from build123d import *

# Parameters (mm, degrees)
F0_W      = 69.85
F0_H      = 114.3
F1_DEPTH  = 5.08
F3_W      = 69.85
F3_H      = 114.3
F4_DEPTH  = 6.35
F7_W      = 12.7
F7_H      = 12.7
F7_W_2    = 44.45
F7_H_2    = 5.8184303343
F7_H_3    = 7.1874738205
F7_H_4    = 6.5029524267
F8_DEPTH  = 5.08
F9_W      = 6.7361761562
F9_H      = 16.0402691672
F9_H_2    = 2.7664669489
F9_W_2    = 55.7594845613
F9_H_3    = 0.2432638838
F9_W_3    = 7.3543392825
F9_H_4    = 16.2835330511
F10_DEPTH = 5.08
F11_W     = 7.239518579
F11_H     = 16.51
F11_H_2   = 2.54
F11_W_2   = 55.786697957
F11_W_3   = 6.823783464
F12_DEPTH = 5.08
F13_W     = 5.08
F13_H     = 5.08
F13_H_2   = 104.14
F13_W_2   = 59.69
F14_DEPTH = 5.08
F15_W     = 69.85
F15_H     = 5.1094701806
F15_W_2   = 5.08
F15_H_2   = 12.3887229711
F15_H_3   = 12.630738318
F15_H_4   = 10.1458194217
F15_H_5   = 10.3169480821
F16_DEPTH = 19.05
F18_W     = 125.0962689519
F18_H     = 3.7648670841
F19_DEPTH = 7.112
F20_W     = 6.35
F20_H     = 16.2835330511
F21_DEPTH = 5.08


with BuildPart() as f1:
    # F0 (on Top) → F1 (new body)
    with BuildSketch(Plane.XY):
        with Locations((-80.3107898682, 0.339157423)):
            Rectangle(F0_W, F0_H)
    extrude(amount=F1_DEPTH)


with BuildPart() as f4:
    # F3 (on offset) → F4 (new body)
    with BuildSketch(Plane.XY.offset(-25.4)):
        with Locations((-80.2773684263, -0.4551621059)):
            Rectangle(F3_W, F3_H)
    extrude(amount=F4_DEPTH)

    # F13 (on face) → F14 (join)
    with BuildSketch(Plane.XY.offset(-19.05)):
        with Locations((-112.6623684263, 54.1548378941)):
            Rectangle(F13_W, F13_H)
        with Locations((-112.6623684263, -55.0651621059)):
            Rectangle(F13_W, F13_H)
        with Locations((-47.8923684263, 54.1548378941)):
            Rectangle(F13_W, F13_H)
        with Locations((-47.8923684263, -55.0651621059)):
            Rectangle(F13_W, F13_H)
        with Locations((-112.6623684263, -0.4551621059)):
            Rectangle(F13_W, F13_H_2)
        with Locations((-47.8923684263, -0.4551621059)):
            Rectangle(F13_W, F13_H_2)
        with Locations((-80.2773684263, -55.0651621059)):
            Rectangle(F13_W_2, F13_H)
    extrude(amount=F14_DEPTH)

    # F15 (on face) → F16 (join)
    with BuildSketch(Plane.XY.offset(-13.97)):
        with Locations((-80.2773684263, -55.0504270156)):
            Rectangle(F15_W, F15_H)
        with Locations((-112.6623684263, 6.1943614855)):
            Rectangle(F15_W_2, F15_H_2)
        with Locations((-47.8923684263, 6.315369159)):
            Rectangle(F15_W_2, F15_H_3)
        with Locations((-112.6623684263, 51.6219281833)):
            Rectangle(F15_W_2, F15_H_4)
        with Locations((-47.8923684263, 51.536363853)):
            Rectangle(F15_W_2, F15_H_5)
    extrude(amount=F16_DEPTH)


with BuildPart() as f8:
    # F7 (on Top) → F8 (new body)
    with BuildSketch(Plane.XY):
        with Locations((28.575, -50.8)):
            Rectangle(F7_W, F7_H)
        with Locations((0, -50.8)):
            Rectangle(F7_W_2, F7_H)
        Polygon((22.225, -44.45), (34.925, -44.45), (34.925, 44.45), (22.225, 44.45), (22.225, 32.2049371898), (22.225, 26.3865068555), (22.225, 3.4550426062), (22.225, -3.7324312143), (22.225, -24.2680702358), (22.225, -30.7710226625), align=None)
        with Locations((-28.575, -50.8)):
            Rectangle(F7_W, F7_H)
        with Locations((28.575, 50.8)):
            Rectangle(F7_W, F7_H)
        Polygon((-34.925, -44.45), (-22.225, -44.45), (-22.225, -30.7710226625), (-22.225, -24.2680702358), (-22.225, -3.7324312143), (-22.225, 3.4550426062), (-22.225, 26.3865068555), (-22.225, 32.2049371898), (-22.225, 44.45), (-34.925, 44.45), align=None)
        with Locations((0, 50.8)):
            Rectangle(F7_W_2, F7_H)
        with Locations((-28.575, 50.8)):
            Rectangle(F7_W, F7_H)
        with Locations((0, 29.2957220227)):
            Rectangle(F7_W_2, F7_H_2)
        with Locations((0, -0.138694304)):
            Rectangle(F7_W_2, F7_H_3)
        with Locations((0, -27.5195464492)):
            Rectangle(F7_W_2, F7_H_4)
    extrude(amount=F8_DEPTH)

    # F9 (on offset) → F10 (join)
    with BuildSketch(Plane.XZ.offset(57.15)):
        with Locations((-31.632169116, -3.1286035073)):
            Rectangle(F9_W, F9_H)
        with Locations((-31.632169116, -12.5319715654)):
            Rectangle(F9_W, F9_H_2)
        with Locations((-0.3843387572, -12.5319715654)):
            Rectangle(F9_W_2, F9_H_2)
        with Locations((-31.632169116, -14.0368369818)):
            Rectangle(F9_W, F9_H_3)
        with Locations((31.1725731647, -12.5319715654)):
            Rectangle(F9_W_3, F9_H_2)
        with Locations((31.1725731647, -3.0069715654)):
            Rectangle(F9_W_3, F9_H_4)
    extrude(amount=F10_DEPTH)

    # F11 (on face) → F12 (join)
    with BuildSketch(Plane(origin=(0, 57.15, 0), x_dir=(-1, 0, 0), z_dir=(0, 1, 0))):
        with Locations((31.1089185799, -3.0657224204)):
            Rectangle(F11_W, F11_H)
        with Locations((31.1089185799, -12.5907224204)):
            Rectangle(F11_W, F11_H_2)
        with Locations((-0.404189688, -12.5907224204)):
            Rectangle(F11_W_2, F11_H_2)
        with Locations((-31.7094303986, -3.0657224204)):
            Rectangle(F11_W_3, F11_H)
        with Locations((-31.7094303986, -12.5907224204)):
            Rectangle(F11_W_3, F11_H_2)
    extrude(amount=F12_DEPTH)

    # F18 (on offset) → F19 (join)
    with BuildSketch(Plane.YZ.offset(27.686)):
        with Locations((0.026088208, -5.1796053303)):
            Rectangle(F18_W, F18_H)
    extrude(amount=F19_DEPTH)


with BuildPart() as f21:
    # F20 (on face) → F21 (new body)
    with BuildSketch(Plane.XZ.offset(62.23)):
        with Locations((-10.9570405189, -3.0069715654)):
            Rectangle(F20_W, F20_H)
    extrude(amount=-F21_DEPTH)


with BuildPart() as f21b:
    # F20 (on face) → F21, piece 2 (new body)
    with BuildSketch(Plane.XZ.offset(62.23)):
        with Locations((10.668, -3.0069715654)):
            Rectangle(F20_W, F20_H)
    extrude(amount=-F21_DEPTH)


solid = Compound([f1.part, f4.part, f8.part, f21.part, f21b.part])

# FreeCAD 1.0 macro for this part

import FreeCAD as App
import Part
import Sketcher

V = App.Vector
Q = App.Units.Quantity


def add_polygon(sketch, points):
    """Adds a closed chain of lines whose ends are joined by coincident constraints."""
    first, n = sketch.GeometryCount, len(points)
    for a, b in zip(points, points[1:] + points[:1]):
        sketch.addGeometry(Part.LineSegment(App.Vector(*a, 0), App.Vector(*b, 0)), False)
    for i in range(n):
        sketch.addConstraint(Sketcher.Constraint("Coincident", first + i, 2, first + (i + 1) % n, 1))

doc = App.newDocument("Part")
body = doc.addObject("PartDesign::Body", "Body")

# Sketch on XY plane
sketch1 = doc.addObject("Sketcher::SketchObject", "Sketch")
body.addObject(sketch1)
sketch1.AttachmentSupport = (doc.XY_Plane, [""])
sketch1.MapMode = "FlatFace"
add_polygon(sketch1, [(-115.23579, 57.489157), (-115.23579, -56.810843), (-45.38579, -56.810843), (-45.38579, 57.489157)])  # lines 0-3
sketch1.addConstraint([
    Sketcher.Constraint("Vertical", 0),
    Sketcher.Constraint("Horizontal", 1),
    Sketcher.Constraint("Vertical", 2),
    Sketcher.Constraint("Horizontal", 3),
    Sketcher.Constraint("DistanceY", 0, 2, 0, 1, Q("4.5 in")),
    Sketcher.Constraint("DistanceX", 1, 1, 1, 2, Q("2.75 in")),
    Sketcher.Constraint("DistanceX", 0, 2, -1, 1, 115.23579),
    Sketcher.Constraint("DistanceY", 0, 2, -1, 1, 56.810843),
])
pad1 = doc.addObject("PartDesign::Pad", "Pad")
body.addObject(pad1)
pad1.Profile = sketch1
pad1.Length = Q("0.2 in")
body2 = doc.addObject("PartDesign::Body", "Body001")

# Sketch on XY plane
sketch2 = doc.addObject("Sketcher::SketchObject", "Sketch001")
body2.addObject(sketch2)
sketch2.AttachmentSupport = (doc.getObject("XY_Plane001"), [""])
sketch2.MapMode = "FlatFace"
sketch2.AttachmentOffset = App.Placement(V(0, 0, -1 * 25.4), App.Rotation())
add_polygon(sketch2, [(-115.202368, 56.694838), (-115.202368, -57.605162), (-45.352368, -57.605162), (-45.352368, 56.694838)])  # lines 0-3
sketch2.addConstraint([
    Sketcher.Constraint("Vertical", 0),
    Sketcher.Constraint("Horizontal", 1),
    Sketcher.Constraint("Vertical", 2),
    Sketcher.Constraint("Horizontal", 3),
    Sketcher.Constraint("DistanceY", 0, 2, 0, 1, Q("4.5 in")),
    Sketcher.Constraint("DistanceX", 1, 1, 1, 2, Q("2.75 in")),
    Sketcher.Constraint("DistanceX", 0, 2, -1, 1, 115.202368),
    Sketcher.Constraint("DistanceY", 0, 2, -1, 1, 57.605162),
])
pad2 = doc.addObject("PartDesign::Pad", "Pad001")
body2.addObject(pad2)
pad2.Profile = sketch2
pad2.Length = Q("0.25 in")

# Sketch on XY plane
sketch3 = doc.addObject("Sketcher::SketchObject", "Sketch002")
body2.addObject(sketch3)
sketch3.AttachmentSupport = (doc.getObject("XY_Plane001"), [""])
sketch3.MapMode = "FlatFace"
sketch3.AttachmentOffset = App.Placement(V(0, 0, -0.75 * 25.4), App.Rotation())
add_polygon(sketch3, [(-115.202368, 56.694838), (-115.202368, -57.605162), (-45.352368, -57.605162), (-45.352368, 56.694838), (-50.432368, 56.694838), (-50.432368, -52.525162), (-110.122368, -52.525162), (-110.122368, 56.694838)])  # lines 0-7
sketch3.addConstraint([
    Sketcher.Constraint("Vertical", 0),
    Sketcher.Constraint("Horizontal", 1),
    Sketcher.Constraint("Vertical", 2),
    Sketcher.Constraint("Horizontal", 3),
    Sketcher.Constraint("Vertical", 4),
    Sketcher.Constraint("Horizontal", 5),
    Sketcher.Constraint("Vertical", 6),
    Sketcher.Constraint("Horizontal", 7),
    Sketcher.Constraint("Horizontal", 3, 2, 6, 2),
    Sketcher.Constraint("Equal", 3, 7),
    Sketcher.Constraint("DistanceX", 3, 2, 3, 1, Q("0.2 in")),
    Sketcher.Constraint("DistanceY", 0, 2, 0, 1, Q("4.5 in")),
    Sketcher.Constraint("DistanceY", 4, 2, 4, 1, Q("4.3 in")),
    Sketcher.Constraint("DistanceX", 1, 1, 1, 2, Q("2.75 in")),
    Sketcher.Constraint("DistanceX", 0, 2, -1, 1, 115.202368),
    Sketcher.Constraint("DistanceY", 0, 2, -1, 1, 57.605162),
])
pad3 = doc.addObject("PartDesign::Pad", "Pad002")
body2.addObject(pad3)
pad3.Profile = sketch3
pad3.Length = Q("0.2 in")

# Sketch on XY plane
sketch4 = doc.addObject("Sketcher::SketchObject", "Sketch003")
body2.addObject(sketch4)
sketch4.AttachmentSupport = (doc.getObject("XY_Plane001"), [""])
sketch4.MapMode = "FlatFace"
sketch4.AttachmentOffset = App.Placement(V(0, 0, -0.55 * 25.4), App.Rotation())
add_polygon(sketch4, [(-115.202368, -52.495692), (-115.202368, -57.605162), (-45.352368, -57.605162), (-45.352368, -52.495692)])  # lines 0-3
add_polygon(sketch4, [(-115.202368, 12.388723), (-115.202368, 0), (-110.122368, 0), (-110.122368, 12.388723)])  # lines 4-7
add_polygon(sketch4, [(-50.432368, 12.630738), (-50.432368, 0), (-45.352368, 0), (-45.352368, 12.630738)])  # lines 8-11
add_polygon(sketch4, [(-115.202368, 56.694838), (-115.202368, 46.549018), (-110.122368, 46.549018), (-110.122368, 56.694838)])  # lines 12-15
add_polygon(sketch4, [(-50.432368, 56.694838), (-50.432368, 46.37789), (-45.352368, 46.37789), (-45.352368, 56.694838)])  # lines 16-19
sketch4.addConstraint([
    Sketcher.Constraint("Vertical", 0),
    Sketcher.Constraint("Horizontal", 1),
    Sketcher.Constraint("Vertical", 2),
    Sketcher.Constraint("Horizontal", 3),
    Sketcher.Constraint("Vertical", 4),
    Sketcher.Constraint("Horizontal", 5),
    Sketcher.Constraint("Vertical", 6),
    Sketcher.Constraint("Horizontal", 7),
    Sketcher.Constraint("Vertical", 8),
    Sketcher.Constraint("Horizontal", 9),
    Sketcher.Constraint("Vertical", 10),
    Sketcher.Constraint("Horizontal", 11),
    Sketcher.Constraint("Vertical", 12),
    Sketcher.Constraint("Horizontal", 13),
    Sketcher.Constraint("Vertical", 14),
    Sketcher.Constraint("Horizontal", 15),
    Sketcher.Constraint("Vertical", 16),
    Sketcher.Constraint("Horizontal", 17),
    Sketcher.Constraint("Vertical", 18),
    Sketcher.Constraint("Horizontal", 19),
    Sketcher.Constraint("PointOnObject", 4, 2, -1),
    Sketcher.Constraint("PointOnObject", 8, 2, -1),
    Sketcher.Constraint("Horizontal", 15, 2, 18, 2),
    Sketcher.Constraint("Vertical", 3, 2, 4, 2),
    Sketcher.Constraint("Vertical", 2, 2, 9, 2),
    Sketcher.Constraint("Vertical", 7, 2, 12, 2),
    Sketcher.Constraint("Vertical", 6, 2, 13, 2),
    Sketcher.Constraint("Vertical", 11, 2, 16, 2),
    Sketcher.Constraint("Vertical", 10, 2, 17, 2),
    Sketcher.Constraint("Equal", 7, 9),
    Sketcher.Constraint("DistanceX", 5, 1, 5, 2, Q("0.2 in")),
    Sketcher.Constraint("DistanceX", 1, 1, 1, 2, Q("2.75 in")),
    Sketcher.Constraint("DistanceY", 0, 2, 0, 1, 5.10947),
    Sketcher.Constraint("DistanceY", 8, 2, 8, 1, 12.630738),
    Sketcher.Constraint("DistanceY", 12, 2, 12, 1, 10.145819),
    Sketcher.Constraint("DistanceY", 16, 2, 16, 1, 10.316948),
    Sketcher.Constraint("DistanceY", 10, 2, 18, 2, 44.0641),
    Sketcher.Constraint("DistanceY", 4, 2, 4, 1, 12.388723),
    Sketcher.Constraint("DistanceX", 0, 2, -1, 1, 115.202368),
    Sketcher.Constraint("DistanceY", 2, 2, -1, 1, 52.495692),
])
pad4 = doc.addObject("PartDesign::Pad", "Pad003")
body2.addObject(pad4)
pad4.Profile = sketch4
pad4.Length = Q("0.75 in")
body3 = doc.addObject("PartDesign::Body", "Body002")

# Sketch on XY plane
sketch5 = doc.addObject("Sketcher::SketchObject", "Sketch004")
body3.addObject(sketch5)
sketch5.AttachmentSupport = (doc.getObject("XY_Plane002"), [""])
sketch5.MapMode = "FlatFace"
add_polygon(sketch5, [(34.925, 57.15), (-34.925, 57.15), (-34.925, -57.15), (34.925, -57.15)])  # lines 0-3
add_polygon(sketch5, [(-22.225, -44.45), (-22.225, -30.771023), (22.225, -30.771023), (22.225, -44.45)])  # lines 4-7
add_polygon(sketch5, [(-22.225, -24.26807), (-22.225, -3.732431), (22.225, -3.732431), (22.225, -24.26807)])  # lines 8-11
add_polygon(sketch5, [(-22.225, 3.455043), (-22.225, 26.386507), (22.225, 26.386507), (22.225, 3.455043)])  # lines 12-15
add_polygon(sketch5, [(-22.225, 32.204937), (-22.225, 44.45), (22.225, 44.45), (22.225, 32.204937)])  # lines 16-19
sketch5.addConstraint([
    Sketcher.Constraint("Horizontal", 0),
    Sketcher.Constraint("Vertical", 1),
    Sketcher.Constraint("Horizontal", 2),
    Sketcher.Constraint("Vertical", 3),
    Sketcher.Constraint("Vertical", 4),
    Sketcher.Constraint("Horizontal", 5),
    Sketcher.Constraint("Vertical", 6),
    Sketcher.Constraint("Horizontal", 7),
    Sketcher.Constraint("Vertical", 8),
    Sketcher.Constraint("Horizontal", 9),
    Sketcher.Constraint("Vertical", 10),
    Sketcher.Constraint("Horizontal", 11),
    Sketcher.Constraint("Vertical", 12),
    Sketcher.Constraint("Horizontal", 13),
    Sketcher.Constraint("Vertical", 14),
    Sketcher.Constraint("Horizontal", 15),
    Sketcher.Constraint("Vertical", 16),
    Sketcher.Constraint("Horizontal", 17),
    Sketcher.Constraint("Vertical", 18),
    Sketcher.Constraint("Horizontal", 19),
    Sketcher.Constraint("Symmetric", 0, 2, 2, 2, -1, 1),
    Sketcher.Constraint("Symmetric", 6, 2, 16, 2, -1, 1),
    Sketcher.Constraint("Vertical", 7, 2, 8, 2),
    Sketcher.Constraint("Vertical", 6, 2, 9, 2),
    Sketcher.Constraint("Vertical", 11, 2, 12, 2),
    Sketcher.Constraint("Vertical", 10, 2, 13, 2),
    Sketcher.Constraint("Vertical", 15, 2, 16, 2),
    Sketcher.Constraint("Vertical", 14, 2, 17, 2),
    Sketcher.Constraint("DistanceY", 1, 2, 1, 1, Q("4.5 in")),
    Sketcher.Constraint("DistanceY", 6, 2, 3, 2, Q("4 in")),
    Sketcher.Constraint("DistanceX", 0, 2, 0, 1, Q("2.75 in")),
    Sketcher.Constraint("DistanceX", 5, 1, 5, 2, Q("1.75 in")),
    Sketcher.Constraint("DistanceY", 8, 1, 8, 2, 20.535639),
    Sketcher.Constraint("DistanceY", 4, 1, 4, 2, 13.678977),
    Sketcher.Constraint("DistanceY", 12, 1, 12, 2, 22.931464),
    Sketcher.Constraint("DistanceY", 16, 1, 16, 2, 12.245063),
    Sketcher.Constraint("DistanceY", 8, 2, -1, 1, 3.732431),
    Sketcher.Constraint("DistanceY", 8, 2, 12, 2, 30.118938),
])
pad5 = doc.addObject("PartDesign::Pad", "Pad004")
body3.addObject(pad5)
pad5.Profile = sketch5
pad5.Length = Q("0.2 in")

# Sketch on XZ plane
sketch6 = doc.addObject("Sketcher::SketchObject", "Sketch005")
body3.addObject(sketch6)
sketch6.AttachmentSupport = (doc.getObject("XZ_Plane002"), [""])
sketch6.MapMode = "FlatFace"
sketch6.AttachmentOffset = App.Placement(V(0, 0, 2.25 * 25.4), App.Rotation())
add_polygon(sketch6, [(-35.000257, 4.891531), (-35.000257, -14.158469), (-28.264081, -14.158469), (-28.264081, -13.915205), (34.849743, -13.915205), (34.849743, 5.134795), (27.495404, 5.134795), (27.495404, -11.148738), (-28.264081, -11.148738), (-28.264081, 4.891531)])  # lines 0-9
sketch6.addConstraint([
    Sketcher.Constraint("Vertical", 0),
    Sketcher.Constraint("Horizontal", 1),
    Sketcher.Constraint("Vertical", 2),
    Sketcher.Constraint("Horizontal", 3),
    Sketcher.Constraint("Vertical", 4),
    Sketcher.Constraint("Horizontal", 5),
    Sketcher.Constraint("Vertical", 6),
    Sketcher.Constraint("Horizontal", 7),
    Sketcher.Constraint("Vertical", 8),
    Sketcher.Constraint("Horizontal", 9),
    Sketcher.Constraint("Vertical", 2, 2, 7, 2),
    Sketcher.Constraint("Equal", 0, 4),
    Sketcher.Constraint("DistanceY", 0, 2, 0, 1, Q("0.75 in")),
    Sketcher.Constraint("DistanceX", 0, 2, 3, 2, Q("2.75 in")),
    Sketcher.Constraint("DistanceX", 5, 2, 5, 1, 7.354339),
    Sketcher.Constraint("DistanceY", 8, 1, 8, 2, 16.040269),
    Sketcher.Constraint("DistanceX", 1, 1, 1, 2, 6.736176),
    Sketcher.Constraint("DistanceY", 2, 1, 2, 2, 0.243264),
    Sketcher.Constraint("DistanceY", 0, 2, -1, 1, 14.158469),
    Sketcher.Constraint("DistanceX", 1, 2, -1, 1, 28.264081),
])
pad6 = doc.addObject("PartDesign::Pad", "Pad005")
body3.addObject(pad6)
pad6.Profile = sketch6
pad6.Length = Q("0.2 in")

# Sketch on XZ plane
sketch7 = doc.addObject("Sketcher::SketchObject", "Sketch006")
body3.addObject(sketch7)
sketch7.AttachmentSupport = (doc.getObject("XZ_Plane002"), [""])
sketch7.MapMode = "FlatFace"
sketch7.AttachmentOffset = App.Placement(V(0, 0, -2.25 * 25.4), App.Rotation())
add_polygon(sketch7, [(-27.489159, 5.189278), (-27.489159, -11.320722), (28.297539, -11.320722), (28.297539, 5.189278), (35.121322, 5.189278), (35.121322, -13.860722), (-34.728678, -13.860722), (-34.728678, 5.189278)])  # lines 0-7
sketch7.addConstraint([
    Sketcher.Constraint("Vertical", 0),
    Sketcher.Constraint("Horizontal", 1),
    Sketcher.Constraint("Vertical", 2),
    Sketcher.Constraint("Horizontal", 3),
    Sketcher.Constraint("Vertical", 4),
    Sketcher.Constraint("Horizontal", 5),
    Sketcher.Constraint("Vertical", 6),
    Sketcher.Constraint("Horizontal", 7),
    Sketcher.Constraint("Horizontal", 3, 2, 6, 2),
    Sketcher.Constraint("DistanceX", 5, 2, 5, 1, Q("2.75 in")),
    Sketcher.Constraint("DistanceY", 0, 2, 0, 1, Q("0.65 in")),
    Sketcher.Constraint("DistanceY", 4, 2, 4, 1, Q("0.75 in")),
    Sketcher.Constraint("DistanceX", 7, 1, 7, 2, 7.239519),
    Sketcher.Constraint("DistanceX", 1, 1, 1, 2, 55.786698),
    Sketcher.Constraint("DistanceX", 0, 2, -1, 1, 27.489159),
    Sketcher.Constraint("DistanceY", 0, 2, -1, 1, 11.320722),
])
pad7 = doc.addObject("PartDesign::Pad", "Pad006")
body3.addObject(pad7)
pad7.Profile = sketch7
pad7.Length = Q("0.2 in")
pad7.Reversed = True

# Sketch on YZ plane
sketch8 = doc.addObject("Sketcher::SketchObject", "Sketch007")
body3.addObject(sketch8)
sketch8.AttachmentSupport = (doc.getObject("YZ_Plane002"), [""])
sketch8.MapMode = "FlatFace"
sketch8.AttachmentOffset = App.Placement(V(0, 0, 1.09 * 25.4), App.Rotation())
add_polygon(sketch8, [(-62.522046, -3.297172), (-62.522046, -7.062039), (62.574223, -7.062039), (62.574223, -3.297172)])  # lines 0-3
sketch8.addConstraint([
    Sketcher.Constraint("Vertical", 0),
    Sketcher.Constraint("Horizontal", 1),
    Sketcher.Constraint("Vertical", 2),
    Sketcher.Constraint("Horizontal", 3),
    Sketcher.Constraint("DistanceX", 1, 1, 1, 2, 125.096269),
    Sketcher.Constraint("DistanceY", 0, 2, 0, 1, 3.764867),
    Sketcher.Constraint("DistanceY", 0, 2, -1, 1, 7.062039),
    Sketcher.Constraint("DistanceX", 0, 2, -1, 1, 62.522046),
])
pad8 = doc.addObject("PartDesign::Pad", "Pad007")
body3.addObject(pad8)
pad8.Profile = sketch8
pad8.Length = Q("0.28 in")
body4 = doc.addObject("PartDesign::Body", "Body003")

# Sketch on XZ plane
sketch9 = doc.addObject("Sketcher::SketchObject", "Sketch008")
body4.addObject(sketch9)
sketch9.AttachmentSupport = (doc.getObject("XZ_Plane003"), [""])
sketch9.MapMode = "FlatFace"
sketch9.AttachmentOffset = App.Placement(V(0, 0, 2.45 * 25.4), App.Rotation())
add_polygon(sketch9, [(-14.132041, 5.134795), (-14.132041, -11.148738), (-7.782041, -11.148738), (-7.782041, 5.134795)])  # lines 0-3
sketch9.addConstraint([
    Sketcher.Constraint("Vertical", 0),
    Sketcher.Constraint("Horizontal", 1),
    Sketcher.Constraint("Vertical", 2),
    Sketcher.Constraint("Horizontal", 3),
    Sketcher.Constraint("DistanceX", 1, 1, 1, 2, Q("0.25 in")),
    Sketcher.Constraint("DistanceY", 0, 2, 0, 1, 16.283533),
    Sketcher.Constraint("DistanceX", 0, 2, -1, 1, 14.132041),
    Sketcher.Constraint("DistanceY", 0, 2, -1, 1, 11.148738),
])
pad9 = doc.addObject("PartDesign::Pad", "Pad008")
body4.addObject(pad9)
pad9.Profile = sketch9
pad9.Length = Q("0.2 in")
pad9.Reversed = True
body5 = doc.addObject("PartDesign::Body", "Body004")

# Sketch on XZ plane
sketch10 = doc.addObject("Sketcher::SketchObject", "Sketch009")
body5.addObject(sketch10)
sketch10.AttachmentSupport = (doc.getObject("XZ_Plane004"), [""])
sketch10.MapMode = "FlatFace"
sketch10.AttachmentOffset = App.Placement(V(0, 0, 2.45 * 25.4), App.Rotation())
add_polygon(sketch10, [(7.493, 5.134795), (7.493, -11.148738), (13.843, -11.148738), (13.843, 5.134795)])  # lines 0-3
sketch10.addConstraint([
    Sketcher.Constraint("Vertical", 0),
    Sketcher.Constraint("Horizontal", 1),
    Sketcher.Constraint("Vertical", 2),
    Sketcher.Constraint("Horizontal", 3),
    Sketcher.Constraint("DistanceX", 1, 1, 1, 2, Q("0.25 in")),
    Sketcher.Constraint("DistanceX", -1, 1, 0, 2, Q("0.295 in")),
    Sketcher.Constraint("DistanceY", 0, 2, 0, 1, 16.283533),
    Sketcher.Constraint("DistanceY", 0, 2, -1, 1, 11.148738),
])
pad10 = doc.addObject("PartDesign::Pad", "Pad009")
body5.addObject(pad10)
pad10.Profile = sketch10
pad10.Length = Q("0.2 in")
pad10.Reversed = True

doc.recompute()
